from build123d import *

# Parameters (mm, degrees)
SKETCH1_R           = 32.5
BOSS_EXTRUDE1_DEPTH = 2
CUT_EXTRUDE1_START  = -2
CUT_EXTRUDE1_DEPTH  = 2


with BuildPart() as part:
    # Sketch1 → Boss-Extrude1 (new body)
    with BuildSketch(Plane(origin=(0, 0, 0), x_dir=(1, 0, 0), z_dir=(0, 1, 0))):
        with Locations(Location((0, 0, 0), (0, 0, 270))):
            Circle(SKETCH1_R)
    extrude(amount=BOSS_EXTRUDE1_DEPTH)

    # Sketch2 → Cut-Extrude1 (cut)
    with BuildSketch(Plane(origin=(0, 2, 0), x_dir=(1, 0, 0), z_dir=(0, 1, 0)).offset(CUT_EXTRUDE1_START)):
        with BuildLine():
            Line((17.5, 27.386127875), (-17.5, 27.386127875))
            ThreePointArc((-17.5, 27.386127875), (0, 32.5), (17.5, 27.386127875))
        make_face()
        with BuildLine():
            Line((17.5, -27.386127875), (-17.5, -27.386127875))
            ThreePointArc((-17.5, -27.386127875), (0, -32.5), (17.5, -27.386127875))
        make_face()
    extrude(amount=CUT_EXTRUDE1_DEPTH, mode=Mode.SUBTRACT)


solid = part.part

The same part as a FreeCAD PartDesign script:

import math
import FreeCAD as App
import Part
import Sketcher
Q = App.Units.Quantity

doc = App.newDocument("Part")
body = doc.addObject("PartDesign::Body", "Body")

sketch1 = body.newObject("Sketcher::SketchObject", "Sketch")
sketch1.AttachmentSupport = (doc.getObject("XZ_Plane"), [""])
sketch1.MapMode = "FlatFace"
sketch1.addGeometry(Part.Circle(App.Vector(0, 0, 0), App.Vector(0, 0, 1), 32), False)
sketch1.addConstraint(Sketcher.Constraint("Coincident", 0, 3, -1, 1))
sketch1.addConstraint(Sketcher.Constraint("Diameter", 0, Q("65 mm")))
pad1 = body.newObject("PartDesign::Pad", "Pad")
pad1.Profile = sketch1
pad1.Length = 2
pad1.Reversed = True

sketch2 = body.newObject("Sketcher::SketchObject", "Sketch001")
sketch2.AttachmentSupport = (doc.getObject("XZ_Plane"), [""])
sketch2.MapMode = "FlatFace"
sketch2.addGeometry(Part.LineSegment(App.Vector(-18, -27, 0), App.Vector(18, -27, 0)), False)
sketch2.addGeometry(Part.ArcOfCircle(Part.Circle(App.Vector(0, 0, 0), App.Vector(0, 0, 1), 32), math.radians(-123), math.radians(-57)), False)
sketch2.addGeometry(Part.LineSegment(App.Vector(18, 27, 0), App.Vector(-18, 27, 0)), False)
sketch2.addGeometry(Part.ArcOfCircle(Part.Circle(App.Vector(0, 0, 0), App.Vector(0, 0, 1), 32), math.radians(57), math.radians(123)), False)
sketch2.addConstraint(Sketcher.Constraint("Coincident", 0, 1, 1, 1))
sketch2.addConstraint(Sketcher.Constraint("Coincident", 1, 2, 0, 2))
sketch2.addConstraint(Sketcher.Constraint("Coincident", 2, 1, 3, 1))
sketch2.addConstraint(Sketcher.Constraint("Coincident", 3, 2, 2, 2))
sketch2.addConstraint(Sketcher.Constraint("Horizontal", 0))
sketch2.addConstraint(Sketcher.Constraint("Horizontal", 2))
sketch2.addConstraint(Sketcher.Constraint("Coincident", 1, 3, -1, 1))
sketch2.addConstraint(Sketcher.Constraint("Coincident", 3, 3, -1, 1))
sketch2.addConstraint(Sketcher.Constraint("Equal", 1, 3))
sketch2.addConstraint(Sketcher.Constraint("Vertical", 1, 2, 2, 1))
sketch2.addConstraint(Sketcher.Constraint("Radius", 1, Q("32.5 mm")))
sketch2.addConstraint(Sketcher.Constraint("DistanceX", 0, 1, 0, 2, Q("35 mm")))
pocket1 = body.newObject("PartDesign::Pocket", "Pocket")
pocket1.Profile = sketch2
pocket1.Length = 2

doc.recompute()
